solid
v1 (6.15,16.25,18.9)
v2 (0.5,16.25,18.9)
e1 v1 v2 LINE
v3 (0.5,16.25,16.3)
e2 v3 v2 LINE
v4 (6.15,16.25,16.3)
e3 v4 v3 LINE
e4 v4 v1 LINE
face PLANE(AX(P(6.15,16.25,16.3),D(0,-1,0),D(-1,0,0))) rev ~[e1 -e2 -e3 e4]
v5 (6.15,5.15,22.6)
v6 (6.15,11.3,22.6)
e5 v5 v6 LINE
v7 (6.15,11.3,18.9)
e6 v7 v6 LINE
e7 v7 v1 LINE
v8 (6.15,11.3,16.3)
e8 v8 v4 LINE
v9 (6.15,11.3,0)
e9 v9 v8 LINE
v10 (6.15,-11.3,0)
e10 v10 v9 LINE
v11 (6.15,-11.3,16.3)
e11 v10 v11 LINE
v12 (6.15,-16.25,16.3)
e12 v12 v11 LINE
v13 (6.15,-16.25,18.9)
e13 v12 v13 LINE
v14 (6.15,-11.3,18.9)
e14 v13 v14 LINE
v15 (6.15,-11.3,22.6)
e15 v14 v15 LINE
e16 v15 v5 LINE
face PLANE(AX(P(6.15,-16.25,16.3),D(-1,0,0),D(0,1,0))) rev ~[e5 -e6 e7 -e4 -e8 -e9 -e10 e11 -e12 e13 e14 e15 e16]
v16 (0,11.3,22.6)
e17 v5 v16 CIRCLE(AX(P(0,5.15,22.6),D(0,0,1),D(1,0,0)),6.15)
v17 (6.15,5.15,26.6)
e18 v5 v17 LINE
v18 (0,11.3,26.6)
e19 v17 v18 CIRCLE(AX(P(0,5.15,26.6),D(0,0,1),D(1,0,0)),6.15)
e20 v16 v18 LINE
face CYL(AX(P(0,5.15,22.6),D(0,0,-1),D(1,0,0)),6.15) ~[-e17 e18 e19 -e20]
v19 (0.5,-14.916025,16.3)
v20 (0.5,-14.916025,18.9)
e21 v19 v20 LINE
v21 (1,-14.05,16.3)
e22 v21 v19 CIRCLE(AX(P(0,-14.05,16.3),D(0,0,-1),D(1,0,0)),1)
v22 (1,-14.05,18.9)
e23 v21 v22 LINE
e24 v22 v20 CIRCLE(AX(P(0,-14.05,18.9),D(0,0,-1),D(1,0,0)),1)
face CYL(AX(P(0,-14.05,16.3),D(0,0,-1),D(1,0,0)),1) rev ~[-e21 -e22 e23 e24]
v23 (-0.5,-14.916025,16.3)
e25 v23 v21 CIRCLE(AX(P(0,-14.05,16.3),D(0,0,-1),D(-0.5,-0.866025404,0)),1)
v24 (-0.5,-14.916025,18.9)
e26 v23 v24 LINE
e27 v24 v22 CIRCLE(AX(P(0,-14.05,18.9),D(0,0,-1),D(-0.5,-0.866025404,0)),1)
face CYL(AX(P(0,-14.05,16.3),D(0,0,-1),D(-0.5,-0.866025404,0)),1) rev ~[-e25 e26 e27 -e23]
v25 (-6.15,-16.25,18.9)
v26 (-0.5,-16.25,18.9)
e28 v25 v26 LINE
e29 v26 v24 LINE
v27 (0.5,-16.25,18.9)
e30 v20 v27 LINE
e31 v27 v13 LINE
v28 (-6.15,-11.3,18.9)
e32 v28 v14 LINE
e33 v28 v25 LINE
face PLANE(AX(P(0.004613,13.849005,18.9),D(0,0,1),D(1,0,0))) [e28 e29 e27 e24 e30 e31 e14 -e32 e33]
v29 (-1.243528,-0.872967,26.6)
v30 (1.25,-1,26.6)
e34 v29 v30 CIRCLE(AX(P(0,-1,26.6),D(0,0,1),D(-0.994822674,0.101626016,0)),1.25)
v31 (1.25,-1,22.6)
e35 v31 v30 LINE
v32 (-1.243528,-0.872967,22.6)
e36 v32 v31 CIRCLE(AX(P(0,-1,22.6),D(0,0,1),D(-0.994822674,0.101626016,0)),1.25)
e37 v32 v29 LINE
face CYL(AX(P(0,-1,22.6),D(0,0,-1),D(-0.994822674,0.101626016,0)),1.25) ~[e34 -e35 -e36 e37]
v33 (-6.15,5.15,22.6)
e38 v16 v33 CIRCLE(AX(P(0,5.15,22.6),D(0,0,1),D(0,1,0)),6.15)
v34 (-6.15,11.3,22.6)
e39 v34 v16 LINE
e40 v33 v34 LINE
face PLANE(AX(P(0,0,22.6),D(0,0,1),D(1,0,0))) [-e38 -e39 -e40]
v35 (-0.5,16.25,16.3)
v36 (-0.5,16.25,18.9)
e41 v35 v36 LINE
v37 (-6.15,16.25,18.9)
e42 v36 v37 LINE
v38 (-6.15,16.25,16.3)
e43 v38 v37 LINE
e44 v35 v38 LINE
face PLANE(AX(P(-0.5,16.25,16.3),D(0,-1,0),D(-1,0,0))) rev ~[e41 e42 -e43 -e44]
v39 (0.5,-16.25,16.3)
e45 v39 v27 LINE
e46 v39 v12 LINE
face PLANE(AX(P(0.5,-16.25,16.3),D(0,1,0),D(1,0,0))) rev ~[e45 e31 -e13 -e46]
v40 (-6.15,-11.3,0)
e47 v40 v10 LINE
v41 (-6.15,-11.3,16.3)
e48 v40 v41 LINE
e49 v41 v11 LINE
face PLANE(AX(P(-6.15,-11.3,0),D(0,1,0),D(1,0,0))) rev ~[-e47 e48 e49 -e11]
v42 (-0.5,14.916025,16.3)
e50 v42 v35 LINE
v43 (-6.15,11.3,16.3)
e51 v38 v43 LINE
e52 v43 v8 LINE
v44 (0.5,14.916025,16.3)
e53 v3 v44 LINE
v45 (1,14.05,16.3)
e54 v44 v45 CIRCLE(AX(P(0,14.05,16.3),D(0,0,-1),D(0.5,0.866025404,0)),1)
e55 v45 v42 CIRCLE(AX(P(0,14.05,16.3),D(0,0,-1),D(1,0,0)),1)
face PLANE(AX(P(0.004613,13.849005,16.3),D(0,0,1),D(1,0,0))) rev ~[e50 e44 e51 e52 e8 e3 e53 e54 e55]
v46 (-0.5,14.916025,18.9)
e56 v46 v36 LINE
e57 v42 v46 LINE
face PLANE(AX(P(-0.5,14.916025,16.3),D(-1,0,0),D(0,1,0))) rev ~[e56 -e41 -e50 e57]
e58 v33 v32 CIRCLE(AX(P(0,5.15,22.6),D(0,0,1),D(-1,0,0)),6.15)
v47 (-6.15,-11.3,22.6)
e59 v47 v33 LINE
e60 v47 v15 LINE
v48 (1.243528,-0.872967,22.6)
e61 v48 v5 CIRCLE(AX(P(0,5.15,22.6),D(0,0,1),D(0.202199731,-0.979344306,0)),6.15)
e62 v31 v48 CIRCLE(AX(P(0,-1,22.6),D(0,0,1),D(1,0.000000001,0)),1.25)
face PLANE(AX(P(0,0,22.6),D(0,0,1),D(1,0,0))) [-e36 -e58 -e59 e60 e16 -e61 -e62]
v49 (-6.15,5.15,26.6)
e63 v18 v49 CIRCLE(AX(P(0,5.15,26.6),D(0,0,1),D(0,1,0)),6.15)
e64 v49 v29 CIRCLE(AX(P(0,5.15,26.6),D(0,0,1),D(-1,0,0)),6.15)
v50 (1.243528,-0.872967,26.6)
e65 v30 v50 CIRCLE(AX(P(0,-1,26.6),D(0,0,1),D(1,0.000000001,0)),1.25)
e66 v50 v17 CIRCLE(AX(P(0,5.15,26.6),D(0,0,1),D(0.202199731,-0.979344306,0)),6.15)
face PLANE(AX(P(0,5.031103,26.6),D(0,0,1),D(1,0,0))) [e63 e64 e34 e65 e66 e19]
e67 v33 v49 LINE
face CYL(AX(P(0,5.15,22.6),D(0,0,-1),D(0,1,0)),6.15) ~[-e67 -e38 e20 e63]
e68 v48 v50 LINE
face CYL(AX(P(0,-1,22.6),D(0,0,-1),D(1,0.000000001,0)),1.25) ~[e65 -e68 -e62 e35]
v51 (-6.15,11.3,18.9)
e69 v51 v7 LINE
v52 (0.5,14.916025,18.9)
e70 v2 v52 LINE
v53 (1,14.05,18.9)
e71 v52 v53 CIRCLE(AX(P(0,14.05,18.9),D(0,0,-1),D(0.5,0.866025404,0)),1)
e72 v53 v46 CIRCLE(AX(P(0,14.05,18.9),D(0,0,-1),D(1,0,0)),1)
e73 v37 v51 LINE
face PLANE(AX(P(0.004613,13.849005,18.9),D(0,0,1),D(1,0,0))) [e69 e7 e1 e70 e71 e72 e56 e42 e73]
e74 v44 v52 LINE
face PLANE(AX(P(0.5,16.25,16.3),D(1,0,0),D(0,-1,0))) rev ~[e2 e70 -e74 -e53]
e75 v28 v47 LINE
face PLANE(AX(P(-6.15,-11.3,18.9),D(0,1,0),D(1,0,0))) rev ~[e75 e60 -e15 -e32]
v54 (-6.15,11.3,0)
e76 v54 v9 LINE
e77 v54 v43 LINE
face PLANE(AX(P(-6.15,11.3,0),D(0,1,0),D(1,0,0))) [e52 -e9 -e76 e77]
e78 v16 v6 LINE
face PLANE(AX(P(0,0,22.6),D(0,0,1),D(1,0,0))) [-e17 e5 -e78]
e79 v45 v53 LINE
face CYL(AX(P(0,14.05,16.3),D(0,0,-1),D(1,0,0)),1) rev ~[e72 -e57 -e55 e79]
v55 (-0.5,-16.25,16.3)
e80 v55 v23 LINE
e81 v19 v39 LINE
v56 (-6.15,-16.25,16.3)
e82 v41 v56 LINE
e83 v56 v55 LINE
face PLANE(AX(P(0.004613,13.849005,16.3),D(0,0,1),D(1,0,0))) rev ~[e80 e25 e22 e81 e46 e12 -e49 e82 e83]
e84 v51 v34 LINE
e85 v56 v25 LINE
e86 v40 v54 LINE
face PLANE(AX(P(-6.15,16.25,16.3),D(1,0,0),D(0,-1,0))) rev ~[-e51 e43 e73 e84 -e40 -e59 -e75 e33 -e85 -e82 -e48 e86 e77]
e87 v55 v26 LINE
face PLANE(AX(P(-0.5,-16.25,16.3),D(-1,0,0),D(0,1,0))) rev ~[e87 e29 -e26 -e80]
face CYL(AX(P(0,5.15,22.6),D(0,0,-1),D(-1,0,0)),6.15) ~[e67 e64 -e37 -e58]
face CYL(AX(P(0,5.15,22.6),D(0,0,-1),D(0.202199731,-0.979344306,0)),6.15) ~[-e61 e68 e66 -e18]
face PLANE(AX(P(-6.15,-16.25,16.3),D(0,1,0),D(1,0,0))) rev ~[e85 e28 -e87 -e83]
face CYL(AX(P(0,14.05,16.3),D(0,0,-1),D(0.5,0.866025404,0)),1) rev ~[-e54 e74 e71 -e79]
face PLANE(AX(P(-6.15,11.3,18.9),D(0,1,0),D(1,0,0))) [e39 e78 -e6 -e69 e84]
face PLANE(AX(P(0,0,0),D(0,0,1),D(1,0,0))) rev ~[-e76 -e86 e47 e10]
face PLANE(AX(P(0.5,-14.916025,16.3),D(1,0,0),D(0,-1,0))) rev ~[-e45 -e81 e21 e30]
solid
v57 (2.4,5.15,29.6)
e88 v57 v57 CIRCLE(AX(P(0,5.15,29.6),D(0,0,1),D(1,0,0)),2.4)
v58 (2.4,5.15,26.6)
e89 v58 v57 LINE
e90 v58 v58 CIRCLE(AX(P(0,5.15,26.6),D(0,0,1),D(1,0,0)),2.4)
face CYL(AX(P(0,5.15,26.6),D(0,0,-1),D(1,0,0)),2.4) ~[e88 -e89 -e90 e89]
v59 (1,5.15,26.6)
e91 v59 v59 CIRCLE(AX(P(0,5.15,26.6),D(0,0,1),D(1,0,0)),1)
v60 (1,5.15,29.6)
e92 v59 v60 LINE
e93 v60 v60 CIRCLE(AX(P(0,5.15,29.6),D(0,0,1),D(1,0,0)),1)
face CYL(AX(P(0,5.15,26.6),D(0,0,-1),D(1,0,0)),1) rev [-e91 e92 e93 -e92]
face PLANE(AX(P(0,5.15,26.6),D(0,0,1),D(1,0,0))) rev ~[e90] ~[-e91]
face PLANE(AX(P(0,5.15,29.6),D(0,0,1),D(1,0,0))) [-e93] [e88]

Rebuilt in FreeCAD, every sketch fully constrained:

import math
import FreeCAD as App
import Part
import Sketcher

V = App.Vector


def add_polygon(sketch, points):
    """Adds a closed chain of lines whose ends are joined by coincident constraints."""
    first, n = sketch.GeometryCount, len(points)
    for a, b in zip(points, points[1:] + points[:1]):
        sketch.addGeometry(Part.LineSegment(App.Vector(*a, 0), App.Vector(*b, 0)), False)
    for i in range(n):
        sketch.addConstraint(Sketcher.Constraint("Coincident", first + i, 2, first + (i + 1) % n, 1))

doc = App.newDocument("Part")
body = doc.addObject("PartDesign::Body", "Body")

# Sketch on XY plane
sketch1 = body.newObject("Sketcher::SketchObject", "Sketch")
sketch1.AttachmentSupport = (doc.getObject("XY_Plane"), [""])
sketch1.MapMode = "FlatFace"
add_polygon(sketch1, [(-6.15, 11.3), (-6.15, -11.3), (6.15, -11.3), (6.15, 11.3)])  # lines 0-3
sketch1.addConstraint([
    Sketcher.Constraint("Vertical", 0),
    Sketcher.Constraint("Horizontal", 1),
    Sketcher.Constraint("Vertical", 2),
    Sketcher.Constraint("Horizontal", 3),
    Sketcher.Constraint("Symmetric", 0, 2, 2, 2, -1, 1),
    Sketcher.Constraint("DistanceX", 1, 1, 1, 2, 12.3),
    Sketcher.Constraint("DistanceY", 0, 2, 0, 1, 22.6),
])
pad1 = body.newObject("PartDesign::Pad", "Pad")
pad1.Profile = sketch1
pad1.Length = 16.3

# Sketch on XY plane
sketch2 = body.newObject("Sketcher::SketchObject", "Sketch001")
sketch2.AttachmentSupport = (doc.getObject("XY_Plane"), [""])
sketch2.MapMode = "FlatFace"
sketch2.AttachmentOffset = App.Placement(V(0, 0, 16.3), App.Rotation())
sketch2.addGeometry([
    Part.LineSegment(V(-6.15, 16.25, 0), V(-6.15, -16.25, 0)),  # 0
    Part.LineSegment(V(-6.15, -16.25, 0), V(-0.5, -16.25, 0)),  # 1
    Part.LineSegment(V(-0.5, -16.25, 0), V(-0.5, -14.916025, 0)),  # 2
    Part.ArcOfCircle(Part.Circle(V(0, -14.05, 0), V(0, 0, 1), 1), math.radians(0), math.radians(240)),  # 3
    Part.ArcOfCircle(Part.Circle(V(0, -14.05, 0), V(0, 0, 1), 1), math.radians(-60), math.radians(0)),  # 4
    Part.LineSegment(V(0.5, -14.916025, 0), V(0.5, -16.25, 0)),  # 5
    Part.LineSegment(V(0.5, -16.25, 0), V(6.15, -16.25, 0)),  # 6
    Part.LineSegment(V(6.15, -16.25, 0), V(6.15, 16.25, 0)),  # 7
    Part.LineSegment(V(6.15, 16.25, 0), V(0.5, 16.25, 0)),  # 8
    Part.LineSegment(V(0.5, 16.25, 0), V(0.5, 14.916025, 0)),  # 9
    Part.ArcOfCircle(Part.Circle(V(0, 14.05, 0), V(0, 0, 1), 1), math.radians(0), math.radians(60)),  # 10
    Part.ArcOfCircle(Part.Circle(V(0, 14.05, 0), V(0, 0, 1), 1), math.radians(120), math.radians(360)),  # 11
    Part.LineSegment(V(-0.5, 14.916025, 0), V(-0.5, 16.25, 0)),  # 12
    Part.LineSegment(V(-0.5, 16.25, 0), V(-6.15, 16.25, 0)),  # 13
], False)
sketch2.addConstraint([
    Sketcher.Constraint("Coincident", 0, 2, 1, 1),
    Sketcher.Constraint("Coincident", 1, 2, 2, 1),
    Sketcher.Constraint("Coincident", 2, 2, 3, 2),
    Sketcher.Constraint("Tangent", 3, 1, 4, 2),
    Sketcher.Constraint("Coincident", 4, 1, 5, 1),
    Sketcher.Constraint("Coincident", 5, 2, 6, 1),
    Sketcher.Constraint("Coincident", 6, 2, 7, 1),
    Sketcher.Constraint("Coincident", 7, 2, 8, 1),
    Sketcher.Constraint("Coincident", 8, 2, 9, 1),
    Sketcher.Constraint("Coincident", 9, 2, 10, 2),
    Sketcher.Constraint("Tangent", 10, 1, 11, 2),
    Sketcher.Constraint("Coincident", 11, 1, 12, 1),
    Sketcher.Constraint("Coincident", 12, 2, 13, 1),
    Sketcher.Constraint("Coincident", 13, 2, 0, 1),
    Sketcher.Constraint("Vertical", 0),
    Sketcher.Constraint("Horizontal", 1),
    Sketcher.Constraint("Vertical", 2),
    Sketcher.Constraint("Vertical", 5),
    Sketcher.Constraint("Horizontal", 6),
    Sketcher.Constraint("Vertical", 7),
    Sketcher.Constraint("Horizontal", 8),
    Sketcher.Constraint("Vertical", 9),
    Sketcher.Constraint("Vertical", 12),
    Sketcher.Constraint("Horizontal", 13),
    Sketcher.Constraint("Equal", 3, 4),
    Sketcher.Constraint("Equal", 4, 10),
    Sketcher.Constraint("Equal", 10, 11),
    Sketcher.Constraint("Symmetric", 3, 3, 10, 3, -1, 1),
    Sketcher.Constraint("Symmetric", 0, 2, 7, 2, -1, 1),
    Sketcher.Constraint("Symmetric", 5, 2, 12, 2, -1, 1),
    Sketcher.Constraint("Symmetric", 2, 2, 4, 1, -2),
    Sketcher.Constraint("Symmetric", 8, 2, 12, 2, -2),
    Sketcher.Constraint("Horizontal", 4, 3, 3, 1),
    Sketcher.Constraint("Horizontal", 11, 3, 10, 1),
    Sketcher.Constraint("Radius", 3, 1.0),
    Sketcher.Constraint("DistanceY", 0, 2, 0, 1, 32.5),
    Sketcher.Constraint("DistanceX", 2, 2, 4, 1, 1.0),
    Sketcher.Constraint("DistanceX", 1, 1, 1, 2, 5.65),
    Sketcher.Constraint("DistanceY", 3, 3, 10, 3, 28.1),
])
pad2 = body.newObject("PartDesign::Pad", "Pad001")
pad2.Profile = sketch2
pad2.Length = 2.6

# Sketch on XY plane
sketch3 = body.newObject("Sketcher::SketchObject", "Sketch002")
sketch3.AttachmentSupport = (doc.getObject("XY_Plane"), [""])
sketch3.MapMode = "FlatFace"
sketch3.AttachmentOffset = App.Placement(V(0, 0, 18.9), App.Rotation())
add_polygon(sketch3, [(-6.15, 11.3), (-6.15, -11.3), (6.15, -11.3), (6.15, 11.3)])  # lines 0-3
sketch3.addConstraint([
    Sketcher.Constraint("Vertical", 0),
    Sketcher.Constraint("Horizontal", 1),
    Sketcher.Constraint("Vertical", 2),
    Sketcher.Constraint("Horizontal", 3),
    Sketcher.Constraint("Symmetric", 0, 2, 2, 2, -1, 1),
    Sketcher.Constraint("DistanceX", 1, 1, 1, 2, 12.3),
    Sketcher.Constraint("DistanceY", 0, 2, 0, 1, 22.6),
])
pad3 = body.newObject("PartDesign::Pad", "Pad002")
pad3.Profile = sketch3
pad3.Length = 3.7

# Sketch on XY plane
sketch4 = body.newObject("Sketcher::SketchObject", "Sketch003")
sketch4.AttachmentSupport = (doc.getObject("XY_Plane"), [""])
sketch4.MapMode = "FlatFace"
sketch4.AttachmentOffset = App.Placement(V(0, 0, 22.6), App.Rotation())
sketch4.addGeometry([
    Part.ArcOfCircle(Part.Circle(V(0, 5.15, 0), V(0, 0, 1), 6.15), math.radians(-78.334377), math.radians(0)),  # 0
    Part.ArcOfCircle(Part.Circle(V(0, 5.15, 0), V(0, 0, 1), 6.15), math.radians(0), math.radians(90)),  # 1
    Part.ArcOfCircle(Part.Circle(V(0, 5.15, 0), V(0, 0, 1), 6.15), math.radians(90), math.radians(180)),  # 2
    Part.ArcOfCircle(Part.Circle(V(0, 5.15, 0), V(0, 0, 1), 6.15), math.radians(180), math.radians(258.334377)),  # 3
    Part.ArcOfCircle(Part.Circle(V(0, -1, 0), V(0, 0, 1), 1.25), math.radians(174.167189), math.radians(360)),  # 4
    Part.ArcOfCircle(Part.Circle(V(0, -1, 0), V(0, 0, 1), 1.25), math.radians(0), math.radians(5.832811)),  # 5
], False)
sketch4.addConstraint([
    Sketcher.Constraint("Tangent", 0, 2, 1, 1),
    Sketcher.Constraint("Tangent", 1, 2, 2, 1),
    Sketcher.Constraint("Tangent", 2, 2, 3, 1),
    Sketcher.Constraint("Coincident", 3, 2, 4, 1),
    Sketcher.Constraint("Tangent", 4, 2, 5, 1),
    Sketcher.Constraint("Coincident", 5, 2, 0, 1),
    Sketcher.Constraint("Coincident", 2, 3, 0, 3),
    Sketcher.Constraint("Equal", 2, 3),
    Sketcher.Constraint("Equal", 4, 5),
    Sketcher.Constraint("Symmetric", 0, 2, 2, 2, -2),
    Sketcher.Constraint("PointOnObject", 4, 3, -2),
    Sketcher.Constraint("PointOnObject", 1, 2, -2),
    Sketcher.Constraint("Horizontal", 3, 3, 0, 2),
    Sketcher.Constraint("Horizontal", 5, 3, 4, 2),
    Sketcher.Constraint("Radius", 0, 6.15),
    Sketcher.Constraint("Radius", 4, 1.25),
    Sketcher.Constraint("DistanceY", 4, 3, -1, 1, 1.0),
    Sketcher.Constraint("DistanceY", -1, 1, 1, 2, 11.3),
])
pad4 = body.newObject("PartDesign::Pad", "Pad003")
pad4.Profile = sketch4
pad4.Length = 4
body2 = doc.addObject("PartDesign::Body", "Body001")

# Sketch on XY plane
sketch5 = body2.newObject("Sketcher::SketchObject", "Sketch004")
sketch5.AttachmentSupport = (doc.getObject("XY_Plane001"), [""])
sketch5.MapMode = "FlatFace"
sketch5.AttachmentOffset = App.Placement(V(0, 0, 26.6), App.Rotation())
sketch5.addGeometry([
    Part.Circle(V(0, 5.15, 0), V(0, 0, 1), 2.4),
    Part.Circle(V(0, 5.15, 0), V(0, 0, 1), 1),
], False)
sketch5.addConstraint([
    Sketcher.Constraint("Coincident", 1, 3, 0, 3),
    Sketcher.Constraint("PointOnObject", 0, 3, -2),
    Sketcher.Constraint("Diameter", 1, 2.0),
    Sketcher.Constraint("Diameter", 0, 4.8),
    Sketcher.Constraint("DistanceY", -1, 1, 0, 3, 5.15),
])
pad5 = body2.newObject("PartDesign::Pad", "Pad004")
pad5.Profile = sketch5
pad5.Length = 3

doc.recompute()
